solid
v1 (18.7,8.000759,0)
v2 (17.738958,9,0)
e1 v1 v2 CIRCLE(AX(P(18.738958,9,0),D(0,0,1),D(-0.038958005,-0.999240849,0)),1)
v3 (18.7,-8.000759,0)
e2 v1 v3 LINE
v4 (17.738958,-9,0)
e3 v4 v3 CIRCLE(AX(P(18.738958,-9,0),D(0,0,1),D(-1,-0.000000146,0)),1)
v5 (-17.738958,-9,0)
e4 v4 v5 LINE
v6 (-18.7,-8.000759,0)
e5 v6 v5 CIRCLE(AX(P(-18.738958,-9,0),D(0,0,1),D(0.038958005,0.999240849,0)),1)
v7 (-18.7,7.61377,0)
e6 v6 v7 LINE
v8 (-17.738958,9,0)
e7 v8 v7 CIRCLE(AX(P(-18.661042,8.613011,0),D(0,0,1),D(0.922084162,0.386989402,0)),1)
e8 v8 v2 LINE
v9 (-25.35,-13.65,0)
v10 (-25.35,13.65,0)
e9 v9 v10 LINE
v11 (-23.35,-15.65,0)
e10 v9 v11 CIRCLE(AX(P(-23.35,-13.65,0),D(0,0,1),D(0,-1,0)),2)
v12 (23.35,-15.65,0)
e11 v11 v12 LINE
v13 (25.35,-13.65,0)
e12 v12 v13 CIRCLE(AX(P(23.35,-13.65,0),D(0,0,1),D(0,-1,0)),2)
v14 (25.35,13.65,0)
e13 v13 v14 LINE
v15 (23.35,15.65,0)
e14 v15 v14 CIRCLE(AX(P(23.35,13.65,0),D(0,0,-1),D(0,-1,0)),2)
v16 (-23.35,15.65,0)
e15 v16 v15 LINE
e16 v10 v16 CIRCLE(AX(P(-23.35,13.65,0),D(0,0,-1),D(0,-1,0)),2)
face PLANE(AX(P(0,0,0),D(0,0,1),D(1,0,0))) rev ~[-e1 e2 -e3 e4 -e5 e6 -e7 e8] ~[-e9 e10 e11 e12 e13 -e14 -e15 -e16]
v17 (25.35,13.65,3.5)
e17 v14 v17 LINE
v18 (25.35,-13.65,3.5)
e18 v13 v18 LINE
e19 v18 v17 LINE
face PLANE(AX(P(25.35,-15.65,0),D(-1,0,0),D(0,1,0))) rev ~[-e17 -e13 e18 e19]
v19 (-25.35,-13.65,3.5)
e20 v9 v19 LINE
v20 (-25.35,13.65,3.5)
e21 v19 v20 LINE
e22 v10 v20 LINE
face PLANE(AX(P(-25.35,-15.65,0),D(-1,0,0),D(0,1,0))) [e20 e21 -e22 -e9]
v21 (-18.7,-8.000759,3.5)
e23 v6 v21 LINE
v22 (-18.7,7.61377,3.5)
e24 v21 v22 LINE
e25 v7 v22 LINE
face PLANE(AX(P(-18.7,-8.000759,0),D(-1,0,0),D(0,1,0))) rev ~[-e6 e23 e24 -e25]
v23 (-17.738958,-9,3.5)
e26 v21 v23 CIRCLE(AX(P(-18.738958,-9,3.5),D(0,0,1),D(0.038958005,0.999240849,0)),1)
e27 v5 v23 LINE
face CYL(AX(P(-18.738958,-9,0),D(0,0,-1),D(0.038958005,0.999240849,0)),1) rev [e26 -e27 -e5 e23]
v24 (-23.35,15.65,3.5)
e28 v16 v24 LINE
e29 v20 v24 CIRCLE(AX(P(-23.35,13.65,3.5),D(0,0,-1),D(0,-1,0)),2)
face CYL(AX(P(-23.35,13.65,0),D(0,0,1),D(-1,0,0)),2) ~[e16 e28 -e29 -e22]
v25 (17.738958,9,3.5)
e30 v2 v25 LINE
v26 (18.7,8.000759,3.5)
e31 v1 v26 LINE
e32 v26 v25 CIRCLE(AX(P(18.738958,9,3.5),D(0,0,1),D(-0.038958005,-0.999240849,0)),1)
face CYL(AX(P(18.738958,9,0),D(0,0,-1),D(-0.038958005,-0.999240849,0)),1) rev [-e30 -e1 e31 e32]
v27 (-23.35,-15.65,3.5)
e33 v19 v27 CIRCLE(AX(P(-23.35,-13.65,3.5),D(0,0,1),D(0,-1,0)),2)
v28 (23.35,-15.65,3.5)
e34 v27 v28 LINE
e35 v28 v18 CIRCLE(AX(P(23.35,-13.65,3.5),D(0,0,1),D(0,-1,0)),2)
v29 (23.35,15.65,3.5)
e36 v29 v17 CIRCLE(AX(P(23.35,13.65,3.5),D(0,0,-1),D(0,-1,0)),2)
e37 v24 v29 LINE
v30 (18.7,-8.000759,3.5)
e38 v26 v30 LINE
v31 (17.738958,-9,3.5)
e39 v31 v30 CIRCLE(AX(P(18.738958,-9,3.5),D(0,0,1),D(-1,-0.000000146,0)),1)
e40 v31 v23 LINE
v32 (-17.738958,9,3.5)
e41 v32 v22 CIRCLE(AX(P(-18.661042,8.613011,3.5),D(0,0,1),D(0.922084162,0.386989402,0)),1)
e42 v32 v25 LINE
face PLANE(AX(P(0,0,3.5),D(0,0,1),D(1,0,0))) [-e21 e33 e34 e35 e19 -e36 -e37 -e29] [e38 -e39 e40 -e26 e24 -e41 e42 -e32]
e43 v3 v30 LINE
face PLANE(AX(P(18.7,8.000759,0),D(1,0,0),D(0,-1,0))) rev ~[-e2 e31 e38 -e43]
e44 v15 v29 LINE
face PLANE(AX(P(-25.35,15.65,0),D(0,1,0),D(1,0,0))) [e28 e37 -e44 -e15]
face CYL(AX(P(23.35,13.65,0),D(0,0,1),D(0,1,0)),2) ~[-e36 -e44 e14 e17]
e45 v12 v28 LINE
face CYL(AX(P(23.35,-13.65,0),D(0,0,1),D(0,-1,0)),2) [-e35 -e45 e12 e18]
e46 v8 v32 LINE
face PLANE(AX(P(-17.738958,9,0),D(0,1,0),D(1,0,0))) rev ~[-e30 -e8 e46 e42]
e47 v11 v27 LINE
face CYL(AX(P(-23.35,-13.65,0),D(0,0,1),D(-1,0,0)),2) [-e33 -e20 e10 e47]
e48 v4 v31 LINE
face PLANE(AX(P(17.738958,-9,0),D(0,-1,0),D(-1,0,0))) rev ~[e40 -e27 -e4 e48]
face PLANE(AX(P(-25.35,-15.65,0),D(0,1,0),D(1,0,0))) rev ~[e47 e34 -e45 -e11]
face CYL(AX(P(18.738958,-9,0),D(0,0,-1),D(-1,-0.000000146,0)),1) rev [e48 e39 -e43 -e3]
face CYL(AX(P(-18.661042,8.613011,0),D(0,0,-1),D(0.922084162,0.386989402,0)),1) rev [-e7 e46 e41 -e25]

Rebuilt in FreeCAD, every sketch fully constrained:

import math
import FreeCAD as App
import Part
import Sketcher

V = App.Vector


def edges_at(feature, points):
    """Names of the edges that pass closest to the given points."""
    edges = feature.Shape.Edges
    near = lambda p: min(range(len(edges)), key=lambda i: edges[i].distToShape(Part.Vertex(*p))[0])
    return sorted({f"Edge{near(p) + 1}" for p in points})


def add_polygon(sketch, points):
    """Adds a closed chain of lines whose ends are joined by coincident constraints."""
    first, n = sketch.GeometryCount, len(points)
    for a, b in zip(points, points[1:] + points[:1]):
        sketch.addGeometry(Part.LineSegment(App.Vector(*a, 0), App.Vector(*b, 0)), False)
    for i in range(n):
        sketch.addConstraint(Sketcher.Constraint("Coincident", first + i, 2, first + (i + 1) % n, 1))

doc = App.newDocument("Part")
body = doc.addObject("PartDesign::Body", "Body")

sketch1 = doc.addObject("Sketcher::SketchObject", "Sketch")
body.addObject(sketch1)
sketch1.AttachmentSupport = (doc.XY_Plane, [""])
sketch1.MapMode = "FlatFace"
add_polygon(sketch1, [(-25.35, 15.65), (-25.35, -15.65), (25.35, -15.65), (25.35, 15.65)])
sketch1.addGeometry(Part.ArcOfCircle(Part.Circle(V(-18.661042, 8.613011, 0), V(0, 0, 1), 1), math.radians(22.7673), math.radians(267.767305)), False)
sketch1.addGeometry(Part.LineSegment(V(-17.738958, 9, 0), V(17.738958, 9, 0)), False)
sketch1.addGeometry(Part.ArcOfCircle(Part.Circle(V(18.738958, 9, 0), V(0, 0, 1), 1), math.radians(-92.232694), math.radians(179.999992)), False)
sketch1.addGeometry(Part.LineSegment(V(18.7, 8.000759, 0), V(18.7, -8.000759, 0)), False)
sketch1.addGeometry(Part.ArcOfCircle(Part.Circle(V(18.738958, -9, 0), V(0, 0, 1), 1), math.radians(-179.999992), math.radians(92.232694)), False)
sketch1.addGeometry(Part.LineSegment(V(17.738958, -9, 0), V(-17.738958, -9, 0)), False)
sketch1.addGeometry(Part.ArcOfCircle(Part.Circle(V(-18.738958, -9, 0), V(0, 0, 1), 1), math.radians(87.767306), math.radians(359.999992)), False)
sketch1.addGeometry(Part.LineSegment(V(-18.7, -8.000759, 0), V(-18.7, 7.61377, 0)), False)
sketch1.addConstraint(Sketcher.Constraint("Coincident", 4, 1, 5, 1))
sketch1.addConstraint(Sketcher.Constraint("Coincident", 5, 2, 6, 2))
sketch1.addConstraint(Sketcher.Constraint("Coincident", 6, 1, 7, 1))
sketch1.addConstraint(Sketcher.Constraint("Coincident", 7, 2, 8, 2))
sketch1.addConstraint(Sketcher.Constraint("Coincident", 8, 1, 9, 1))
sketch1.addConstraint(Sketcher.Constraint("Coincident", 9, 2, 10, 2))
sketch1.addConstraint(Sketcher.Constraint("Coincident", 10, 1, 11, 1))
sketch1.addConstraint(Sketcher.Constraint("Coincident", 11, 2, 4, 2))
sketch1.addConstraint(Sketcher.Constraint("Vertical", 0))
sketch1.addConstraint(Sketcher.Constraint("Horizontal", 1))
sketch1.addConstraint(Sketcher.Constraint("Vertical", 2))
sketch1.addConstraint(Sketcher.Constraint("Horizontal", 3))
sketch1.addConstraint(Sketcher.Constraint("Horizontal", 5))
sketch1.addConstraint(Sketcher.Constraint("Vertical", 7))
sketch1.addConstraint(Sketcher.Constraint("Horizontal", 9))
sketch1.addConstraint(Sketcher.Constraint("Vertical", 11))
sketch1.addConstraint(Sketcher.Constraint("Equal", 4, 6))
sketch1.addConstraint(Sketcher.Constraint("Equal", 6, 8))
sketch1.addConstraint(Sketcher.Constraint("Equal", 8, 10))
sketch1.addConstraint(Sketcher.Constraint("Symmetric", 6, 3, 10, 3, -1, 1))
sketch1.addConstraint(Sketcher.Constraint("Symmetric", 0, 2, 2, 2, -1, 1))
sketch1.addConstraint(Sketcher.Constraint("Symmetric", 4, 1, 8, 1, -1, 1))
sketch1.addConstraint(Sketcher.Constraint("Symmetric", 8, 3, 10, 3, -2))
sketch1.addConstraint(Sketcher.Constraint("Horizontal", 6, 3, 4, 1))
sketch1.addConstraint(Sketcher.Constraint("Horizontal", 7, 2, 10, 1))
sketch1.addConstraint(Sketcher.Constraint("Radius", 4, 1.0))
sketch1.addConstraint(Sketcher.Constraint("DistanceX", 1, 1, 1, 2, 50.7))
sketch1.addConstraint(Sketcher.Constraint("DistanceY", 0, 2, 0, 1, 31.3))
sketch1.addConstraint(Sketcher.Constraint("DistanceY", -1, 1, 6, 3, 9.0))
sketch1.addConstraint(Sketcher.Constraint("DistanceX", -1, 1, 6, 1, 18.7))
sketch1.addConstraint(Sketcher.Constraint("DistanceX", 4, 3, 6, 3, 37.4))
sketch1.addConstraint(Sketcher.Constraint("DistanceY", 7, 2, 7, 1, 16.001518))
pad1 = doc.addObject("PartDesign::Pad", "Pad")
body.addObject(pad1)
pad1.Profile = sketch1
pad1.Length = 3.5
doc.recompute()

fillet = doc.addObject("PartDesign::Fillet", "Fillet")
body.addObject(fillet)
fillet.Base = (pad1, edges_at(pad1, [
    (25.35, 15.65, 1.75),
    (25.35, -15.65, 1.75),
    (-25.35, -15.65, 1.75),
    (-25.35, 15.65, 1.75),
]))
fillet.Radius = 2

doc.recompute()
